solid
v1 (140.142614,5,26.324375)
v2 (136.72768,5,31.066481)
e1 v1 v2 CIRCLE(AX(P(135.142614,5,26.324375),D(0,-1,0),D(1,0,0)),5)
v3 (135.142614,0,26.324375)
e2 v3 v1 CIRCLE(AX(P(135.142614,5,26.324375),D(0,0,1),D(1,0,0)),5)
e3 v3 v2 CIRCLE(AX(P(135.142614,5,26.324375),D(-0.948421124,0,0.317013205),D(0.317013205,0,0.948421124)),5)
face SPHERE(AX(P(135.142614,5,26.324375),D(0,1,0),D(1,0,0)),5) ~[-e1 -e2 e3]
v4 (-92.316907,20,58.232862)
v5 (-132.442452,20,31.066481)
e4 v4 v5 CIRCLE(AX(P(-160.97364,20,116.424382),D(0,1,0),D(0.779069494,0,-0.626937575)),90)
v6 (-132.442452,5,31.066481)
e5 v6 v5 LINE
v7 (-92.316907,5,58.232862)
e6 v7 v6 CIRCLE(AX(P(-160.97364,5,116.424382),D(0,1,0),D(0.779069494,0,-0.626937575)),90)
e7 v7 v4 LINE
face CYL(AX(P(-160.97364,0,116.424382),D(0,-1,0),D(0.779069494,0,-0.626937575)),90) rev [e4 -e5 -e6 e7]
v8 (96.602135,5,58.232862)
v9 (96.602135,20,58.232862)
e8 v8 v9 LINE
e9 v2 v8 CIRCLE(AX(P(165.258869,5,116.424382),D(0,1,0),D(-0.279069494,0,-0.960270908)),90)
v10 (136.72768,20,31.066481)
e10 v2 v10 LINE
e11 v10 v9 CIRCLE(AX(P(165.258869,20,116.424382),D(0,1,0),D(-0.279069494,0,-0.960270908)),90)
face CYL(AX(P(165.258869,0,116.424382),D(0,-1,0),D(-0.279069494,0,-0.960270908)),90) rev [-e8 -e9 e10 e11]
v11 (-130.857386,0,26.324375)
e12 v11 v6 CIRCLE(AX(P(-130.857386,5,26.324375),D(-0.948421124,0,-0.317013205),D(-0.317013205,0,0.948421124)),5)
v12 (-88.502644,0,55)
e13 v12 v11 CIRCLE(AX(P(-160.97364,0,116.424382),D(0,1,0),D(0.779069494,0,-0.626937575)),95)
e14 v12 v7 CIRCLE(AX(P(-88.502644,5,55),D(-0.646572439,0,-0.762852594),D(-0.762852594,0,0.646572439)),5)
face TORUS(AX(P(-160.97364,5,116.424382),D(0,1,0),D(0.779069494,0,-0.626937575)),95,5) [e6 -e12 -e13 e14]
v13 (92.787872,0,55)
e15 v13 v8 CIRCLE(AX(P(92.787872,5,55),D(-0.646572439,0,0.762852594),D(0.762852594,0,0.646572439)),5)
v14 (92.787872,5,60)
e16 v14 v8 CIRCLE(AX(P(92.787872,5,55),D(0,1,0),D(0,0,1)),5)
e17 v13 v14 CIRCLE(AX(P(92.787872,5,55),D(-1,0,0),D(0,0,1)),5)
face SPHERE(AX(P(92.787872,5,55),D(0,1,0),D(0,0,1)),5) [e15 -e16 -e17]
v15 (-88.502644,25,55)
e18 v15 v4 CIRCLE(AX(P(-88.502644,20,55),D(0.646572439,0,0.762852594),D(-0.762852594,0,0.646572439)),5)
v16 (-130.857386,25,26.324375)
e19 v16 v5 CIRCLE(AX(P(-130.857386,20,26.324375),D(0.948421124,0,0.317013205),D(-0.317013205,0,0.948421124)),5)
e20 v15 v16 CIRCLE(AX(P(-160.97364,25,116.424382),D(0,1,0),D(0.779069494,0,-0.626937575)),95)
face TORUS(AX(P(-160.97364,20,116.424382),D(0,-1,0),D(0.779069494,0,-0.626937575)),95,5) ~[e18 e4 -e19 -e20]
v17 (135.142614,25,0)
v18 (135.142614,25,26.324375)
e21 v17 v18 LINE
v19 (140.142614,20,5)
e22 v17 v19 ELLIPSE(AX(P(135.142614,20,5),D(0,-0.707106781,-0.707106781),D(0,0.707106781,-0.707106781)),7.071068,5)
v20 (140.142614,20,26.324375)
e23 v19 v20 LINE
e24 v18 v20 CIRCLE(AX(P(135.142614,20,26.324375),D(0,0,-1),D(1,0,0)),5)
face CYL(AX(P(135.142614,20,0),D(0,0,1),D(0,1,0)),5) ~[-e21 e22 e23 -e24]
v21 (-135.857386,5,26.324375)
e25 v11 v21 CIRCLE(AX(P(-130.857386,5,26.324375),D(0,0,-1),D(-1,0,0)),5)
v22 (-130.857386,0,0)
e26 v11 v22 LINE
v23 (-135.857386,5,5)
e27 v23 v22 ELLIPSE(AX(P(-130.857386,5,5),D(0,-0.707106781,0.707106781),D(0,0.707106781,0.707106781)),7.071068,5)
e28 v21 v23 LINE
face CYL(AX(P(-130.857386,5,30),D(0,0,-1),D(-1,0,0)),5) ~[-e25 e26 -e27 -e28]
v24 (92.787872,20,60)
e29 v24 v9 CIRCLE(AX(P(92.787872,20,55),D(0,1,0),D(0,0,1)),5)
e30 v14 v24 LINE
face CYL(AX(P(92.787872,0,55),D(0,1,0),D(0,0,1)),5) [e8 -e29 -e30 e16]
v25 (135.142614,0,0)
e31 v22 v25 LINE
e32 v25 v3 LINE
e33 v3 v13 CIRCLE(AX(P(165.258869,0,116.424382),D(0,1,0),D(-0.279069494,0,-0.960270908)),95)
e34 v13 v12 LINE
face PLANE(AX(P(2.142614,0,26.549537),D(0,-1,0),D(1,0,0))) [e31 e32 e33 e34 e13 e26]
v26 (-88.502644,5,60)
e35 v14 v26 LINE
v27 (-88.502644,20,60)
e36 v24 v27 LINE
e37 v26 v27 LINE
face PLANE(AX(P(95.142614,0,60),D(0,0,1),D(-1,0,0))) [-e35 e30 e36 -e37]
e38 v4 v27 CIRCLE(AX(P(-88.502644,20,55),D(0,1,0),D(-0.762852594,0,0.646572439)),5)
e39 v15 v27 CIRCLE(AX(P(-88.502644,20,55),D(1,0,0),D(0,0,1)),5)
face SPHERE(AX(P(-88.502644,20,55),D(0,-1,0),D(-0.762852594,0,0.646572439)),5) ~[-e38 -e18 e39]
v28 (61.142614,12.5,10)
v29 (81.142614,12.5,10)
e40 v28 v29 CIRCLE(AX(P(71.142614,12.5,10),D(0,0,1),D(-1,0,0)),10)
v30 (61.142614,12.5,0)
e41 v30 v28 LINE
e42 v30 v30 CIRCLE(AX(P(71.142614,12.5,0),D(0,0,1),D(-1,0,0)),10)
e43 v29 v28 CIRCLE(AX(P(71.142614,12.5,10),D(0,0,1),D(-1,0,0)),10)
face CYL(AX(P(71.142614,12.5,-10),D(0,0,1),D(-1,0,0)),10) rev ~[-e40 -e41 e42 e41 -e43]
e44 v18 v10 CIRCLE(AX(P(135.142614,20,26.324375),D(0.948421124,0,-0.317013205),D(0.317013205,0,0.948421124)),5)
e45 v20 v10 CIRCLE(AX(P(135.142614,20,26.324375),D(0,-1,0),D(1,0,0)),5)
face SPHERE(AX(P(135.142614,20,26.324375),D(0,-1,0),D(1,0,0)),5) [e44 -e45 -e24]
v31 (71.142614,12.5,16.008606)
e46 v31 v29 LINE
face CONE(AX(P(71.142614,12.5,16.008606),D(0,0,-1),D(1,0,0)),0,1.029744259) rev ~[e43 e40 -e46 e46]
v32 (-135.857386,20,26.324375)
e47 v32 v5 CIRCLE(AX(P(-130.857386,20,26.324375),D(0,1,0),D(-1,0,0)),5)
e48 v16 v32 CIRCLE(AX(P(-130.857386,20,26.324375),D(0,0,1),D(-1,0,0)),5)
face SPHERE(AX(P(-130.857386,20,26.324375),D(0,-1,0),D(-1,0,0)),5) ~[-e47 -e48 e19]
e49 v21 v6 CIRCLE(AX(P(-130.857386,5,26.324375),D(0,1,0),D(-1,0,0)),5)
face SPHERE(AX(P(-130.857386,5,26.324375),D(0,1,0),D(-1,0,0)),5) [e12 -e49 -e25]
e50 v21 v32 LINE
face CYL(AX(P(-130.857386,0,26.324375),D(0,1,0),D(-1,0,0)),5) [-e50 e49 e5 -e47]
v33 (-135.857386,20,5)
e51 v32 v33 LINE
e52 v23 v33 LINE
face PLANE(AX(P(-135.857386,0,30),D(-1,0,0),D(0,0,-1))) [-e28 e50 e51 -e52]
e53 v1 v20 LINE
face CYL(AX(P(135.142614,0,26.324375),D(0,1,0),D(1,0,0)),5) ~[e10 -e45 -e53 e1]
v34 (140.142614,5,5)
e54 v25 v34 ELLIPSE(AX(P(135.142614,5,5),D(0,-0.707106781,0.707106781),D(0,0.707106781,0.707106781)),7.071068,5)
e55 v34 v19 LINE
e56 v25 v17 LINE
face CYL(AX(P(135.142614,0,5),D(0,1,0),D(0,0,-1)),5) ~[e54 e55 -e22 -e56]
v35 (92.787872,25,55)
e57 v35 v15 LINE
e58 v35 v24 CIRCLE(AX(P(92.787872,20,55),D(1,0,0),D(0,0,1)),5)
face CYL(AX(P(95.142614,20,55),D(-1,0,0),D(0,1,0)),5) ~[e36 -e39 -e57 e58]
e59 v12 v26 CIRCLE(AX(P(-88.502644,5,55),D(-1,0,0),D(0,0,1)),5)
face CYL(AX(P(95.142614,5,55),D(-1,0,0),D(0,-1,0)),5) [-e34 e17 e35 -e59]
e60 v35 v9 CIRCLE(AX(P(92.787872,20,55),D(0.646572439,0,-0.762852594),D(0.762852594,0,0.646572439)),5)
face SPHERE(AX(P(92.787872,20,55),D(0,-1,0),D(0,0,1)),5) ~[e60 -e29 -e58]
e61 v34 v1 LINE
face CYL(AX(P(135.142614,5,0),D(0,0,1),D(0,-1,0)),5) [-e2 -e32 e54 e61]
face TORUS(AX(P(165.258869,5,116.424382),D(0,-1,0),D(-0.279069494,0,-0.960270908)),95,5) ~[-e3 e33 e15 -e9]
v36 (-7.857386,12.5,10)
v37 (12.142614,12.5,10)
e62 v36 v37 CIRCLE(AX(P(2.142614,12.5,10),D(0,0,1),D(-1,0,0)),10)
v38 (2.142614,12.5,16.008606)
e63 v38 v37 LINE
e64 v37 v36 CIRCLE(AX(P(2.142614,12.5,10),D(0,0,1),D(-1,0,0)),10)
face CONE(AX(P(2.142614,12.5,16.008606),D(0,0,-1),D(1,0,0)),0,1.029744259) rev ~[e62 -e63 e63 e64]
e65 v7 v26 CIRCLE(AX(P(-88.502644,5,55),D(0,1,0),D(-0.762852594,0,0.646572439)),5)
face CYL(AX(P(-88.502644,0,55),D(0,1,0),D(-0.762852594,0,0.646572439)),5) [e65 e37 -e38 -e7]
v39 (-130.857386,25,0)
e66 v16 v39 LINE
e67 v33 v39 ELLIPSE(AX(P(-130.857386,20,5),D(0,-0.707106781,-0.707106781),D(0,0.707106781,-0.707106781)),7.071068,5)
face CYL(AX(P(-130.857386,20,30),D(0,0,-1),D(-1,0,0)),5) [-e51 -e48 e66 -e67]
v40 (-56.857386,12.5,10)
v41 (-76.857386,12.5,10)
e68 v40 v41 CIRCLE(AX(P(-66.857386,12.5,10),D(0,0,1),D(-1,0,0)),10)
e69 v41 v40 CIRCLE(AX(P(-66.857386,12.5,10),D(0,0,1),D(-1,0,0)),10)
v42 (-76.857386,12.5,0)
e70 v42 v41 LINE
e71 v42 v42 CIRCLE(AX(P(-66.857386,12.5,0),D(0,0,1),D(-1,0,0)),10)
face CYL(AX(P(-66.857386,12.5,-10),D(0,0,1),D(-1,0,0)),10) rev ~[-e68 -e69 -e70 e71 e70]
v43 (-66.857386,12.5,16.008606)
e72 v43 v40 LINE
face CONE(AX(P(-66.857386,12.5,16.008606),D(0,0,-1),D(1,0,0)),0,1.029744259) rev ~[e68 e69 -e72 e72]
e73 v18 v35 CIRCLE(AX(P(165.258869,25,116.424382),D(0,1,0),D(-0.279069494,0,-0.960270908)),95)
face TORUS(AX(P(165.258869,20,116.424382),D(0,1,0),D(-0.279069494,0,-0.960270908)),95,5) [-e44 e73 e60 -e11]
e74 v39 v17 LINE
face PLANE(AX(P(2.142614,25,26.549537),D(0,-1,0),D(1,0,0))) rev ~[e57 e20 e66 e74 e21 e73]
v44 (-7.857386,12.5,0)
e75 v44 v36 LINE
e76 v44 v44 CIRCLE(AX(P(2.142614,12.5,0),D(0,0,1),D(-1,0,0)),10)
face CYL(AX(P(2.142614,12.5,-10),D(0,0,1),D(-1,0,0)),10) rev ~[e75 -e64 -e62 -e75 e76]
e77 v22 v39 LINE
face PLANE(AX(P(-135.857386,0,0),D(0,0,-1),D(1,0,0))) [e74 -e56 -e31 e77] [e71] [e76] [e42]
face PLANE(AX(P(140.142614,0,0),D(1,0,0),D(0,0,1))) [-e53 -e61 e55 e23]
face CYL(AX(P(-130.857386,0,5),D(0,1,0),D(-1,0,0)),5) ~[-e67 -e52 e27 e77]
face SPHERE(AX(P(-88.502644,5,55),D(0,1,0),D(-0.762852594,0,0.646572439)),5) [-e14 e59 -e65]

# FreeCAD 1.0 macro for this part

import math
import FreeCAD as App
import Part
import Sketcher
Q = App.Units.Quantity


def edges_at(feature, points):
    """Names of the edges that pass closest to the given points."""
    edges = feature.Shape.Edges
    near = lambda p: min(range(len(edges)), key=lambda i: edges[i].distToShape(Part.Vertex(*p))[0])
    return sorted({f"Edge{near(p) + 1}" for p in points})

doc = App.newDocument("Part")
body = doc.addObject("PartDesign::Body", "Body")

# Sketch on XZ plane
sketch1 = doc.addObject("Sketcher::SketchObject", "Sketch")
body.addObject(sketch1)
sketch1.AttachmentSupport = (doc.XZ_Plane, [""])
sketch1.MapMode = "FlatFace"
sketch1.addGeometry([
    Part.LineSegment(App.Vector(-136, 30, 0), App.Vector(-136, 0, 0)),  # 0
    Part.LineSegment(App.Vector(-136, 0, 0), App.Vector(140, 0, 0)),  # 1
    Part.LineSegment(App.Vector(140, 0, 0), App.Vector(140, 30, 0)),  # 2
    Part.ArcOfCircle(Part.Circle(App.Vector(165, 116, 0), App.Vector(0, 0, 1), 90), math.radians(-141), math.radians(-106)),  # 3
    Part.LineSegment(App.Vector(95, 60, 0), App.Vector(-91, 60, 0)),  # 4
    Part.ArcOfCircle(Part.Circle(App.Vector(-161, 116, 0), App.Vector(0, 0, 1), 90), math.radians(-74), math.radians(-39)),  # 5
], False)
sketch1.addConstraint([
    Sketcher.Constraint("Coincident", 0, 2, 1, 1),
    Sketcher.Constraint("Coincident", 1, 2, 2, 1),
    Sketcher.Constraint("Coincident", 2, 2, 3, 2),
    Sketcher.Constraint("Coincident", 3, 1, 4, 1),
    Sketcher.Constraint("Coincident", 4, 2, 5, 2),
    Sketcher.Constraint("Coincident", 5, 1, 0, 1),
    Sketcher.Constraint("Vertical", 0),
    Sketcher.Constraint("Horizontal", 1),
    Sketcher.Constraint("Vertical", 2),
    Sketcher.Constraint("Horizontal", 4),
    Sketcher.Constraint("Equal", 3, 5),
    Sketcher.Constraint("PointOnObject", 0, 2, -1),
    Sketcher.Constraint("Horizontal", 3, 3, 5, 3),
    Sketcher.Constraint("Horizontal", 2, 2, 5, 1),
    Sketcher.Constraint("Radius", 3, Q("90 mm")),
    Sketcher.Constraint("DistanceX", 1, 1, 1, 2, Q("276 mm")),
    Sketcher.Constraint("DistanceX", 4, 2, 4, 1, Q("186 mm")),
    Sketcher.Constraint("DistanceY", 0, 2, 0, 1, Q("30 mm")),
    Sketcher.Constraint("DistanceY", -1, 1, 3, 1, Q("60 mm")),
    Sketcher.Constraint("DistanceX", -1, 1, 3, 3, Q("165.258869 mm")),
])
pad1 = doc.addObject("PartDesign::Pad", "Pad")
body.addObject(pad1)
pad1.Profile = sketch1
pad1.Length = 25
pad1.Reversed = True

# Sketch on XY plane
sketch2 = doc.addObject("Sketcher::SketchObject", "Sketch001")
body.addObject(sketch2)
sketch2.AttachmentSupport = (doc.XY_Plane, [""])
sketch2.MapMode = "FlatFace"
sketch2.addGeometry([
    Part.Circle(App.Vector(-67, 12, 0), App.Vector(0, 0, 1), 10),
    Part.Circle(App.Vector(2, 12, 0), App.Vector(0, 0, 1), 10),
    Part.Circle(App.Vector(71, 12, 0), App.Vector(0, 0, 1), 10),
], False)
sketch2.addConstraint([
    Sketcher.Constraint("Equal", 0, 1),
    Sketcher.Constraint("Equal", 1, 2),
    Sketcher.Constraint("Horizontal", 0, 3, 1, 3),
    Sketcher.Constraint("Horizontal", 1, 3, 2, 3),
    Sketcher.Constraint("Diameter", 0, Q("20 mm")),
    Sketcher.Constraint("DistanceX", 0, 3, 1, 3, Q("69 mm")),
    Sketcher.Constraint("DistanceX", 1, 3, 2, 3, Q("69 mm")),
    Sketcher.Constraint("DistanceY", -1, 1, 0, 3, Q("12.5 mm")),
    Sketcher.Constraint("DistanceX", 0, 3, -1, 1, Q("66.857386 mm")),
])
doc.recompute()
hole = doc.addObject("PartDesign::Hole", "Hole")
body.addObject(hole)
hole.Profile = sketch2
hole.ThreadType = "None"
hole.Diameter = 20
hole.DepthType = "Dimension"
hole.Depth = 10
hole.DrillPoint = "Angled"
hole.DrillPointAngle = 118
hole.Reversed = True
doc.recompute()

fillet = doc.addObject("PartDesign::Fillet", "Fillet")
body.addObject(fillet)
fillet.Base = (hole, edges_at(hole, [
    (140.143, 12.5, 0),
    (140.143, 12.5, 30),
    (140.143, 0, 15),
    (140.143, 25, 15),
    (-135.857, 12.5, 30),
    (-135.857, 12.5, 0),
    (-135.857, 0, 15),
    (-135.857, 25, 15),
    (-90.857, 12.5, 60),
    (-111.051, 0, 41.54),
    (-111.051, 25, 41.54),
    (95.143, 12.5, 60),
    (2.143, 0, 60),
    (2.143, 25, 60),
    (115.336, 0, 41.54),
    (115.336, 25, 41.54),
]))
fillet.Radius = 5

doc.recompute()
